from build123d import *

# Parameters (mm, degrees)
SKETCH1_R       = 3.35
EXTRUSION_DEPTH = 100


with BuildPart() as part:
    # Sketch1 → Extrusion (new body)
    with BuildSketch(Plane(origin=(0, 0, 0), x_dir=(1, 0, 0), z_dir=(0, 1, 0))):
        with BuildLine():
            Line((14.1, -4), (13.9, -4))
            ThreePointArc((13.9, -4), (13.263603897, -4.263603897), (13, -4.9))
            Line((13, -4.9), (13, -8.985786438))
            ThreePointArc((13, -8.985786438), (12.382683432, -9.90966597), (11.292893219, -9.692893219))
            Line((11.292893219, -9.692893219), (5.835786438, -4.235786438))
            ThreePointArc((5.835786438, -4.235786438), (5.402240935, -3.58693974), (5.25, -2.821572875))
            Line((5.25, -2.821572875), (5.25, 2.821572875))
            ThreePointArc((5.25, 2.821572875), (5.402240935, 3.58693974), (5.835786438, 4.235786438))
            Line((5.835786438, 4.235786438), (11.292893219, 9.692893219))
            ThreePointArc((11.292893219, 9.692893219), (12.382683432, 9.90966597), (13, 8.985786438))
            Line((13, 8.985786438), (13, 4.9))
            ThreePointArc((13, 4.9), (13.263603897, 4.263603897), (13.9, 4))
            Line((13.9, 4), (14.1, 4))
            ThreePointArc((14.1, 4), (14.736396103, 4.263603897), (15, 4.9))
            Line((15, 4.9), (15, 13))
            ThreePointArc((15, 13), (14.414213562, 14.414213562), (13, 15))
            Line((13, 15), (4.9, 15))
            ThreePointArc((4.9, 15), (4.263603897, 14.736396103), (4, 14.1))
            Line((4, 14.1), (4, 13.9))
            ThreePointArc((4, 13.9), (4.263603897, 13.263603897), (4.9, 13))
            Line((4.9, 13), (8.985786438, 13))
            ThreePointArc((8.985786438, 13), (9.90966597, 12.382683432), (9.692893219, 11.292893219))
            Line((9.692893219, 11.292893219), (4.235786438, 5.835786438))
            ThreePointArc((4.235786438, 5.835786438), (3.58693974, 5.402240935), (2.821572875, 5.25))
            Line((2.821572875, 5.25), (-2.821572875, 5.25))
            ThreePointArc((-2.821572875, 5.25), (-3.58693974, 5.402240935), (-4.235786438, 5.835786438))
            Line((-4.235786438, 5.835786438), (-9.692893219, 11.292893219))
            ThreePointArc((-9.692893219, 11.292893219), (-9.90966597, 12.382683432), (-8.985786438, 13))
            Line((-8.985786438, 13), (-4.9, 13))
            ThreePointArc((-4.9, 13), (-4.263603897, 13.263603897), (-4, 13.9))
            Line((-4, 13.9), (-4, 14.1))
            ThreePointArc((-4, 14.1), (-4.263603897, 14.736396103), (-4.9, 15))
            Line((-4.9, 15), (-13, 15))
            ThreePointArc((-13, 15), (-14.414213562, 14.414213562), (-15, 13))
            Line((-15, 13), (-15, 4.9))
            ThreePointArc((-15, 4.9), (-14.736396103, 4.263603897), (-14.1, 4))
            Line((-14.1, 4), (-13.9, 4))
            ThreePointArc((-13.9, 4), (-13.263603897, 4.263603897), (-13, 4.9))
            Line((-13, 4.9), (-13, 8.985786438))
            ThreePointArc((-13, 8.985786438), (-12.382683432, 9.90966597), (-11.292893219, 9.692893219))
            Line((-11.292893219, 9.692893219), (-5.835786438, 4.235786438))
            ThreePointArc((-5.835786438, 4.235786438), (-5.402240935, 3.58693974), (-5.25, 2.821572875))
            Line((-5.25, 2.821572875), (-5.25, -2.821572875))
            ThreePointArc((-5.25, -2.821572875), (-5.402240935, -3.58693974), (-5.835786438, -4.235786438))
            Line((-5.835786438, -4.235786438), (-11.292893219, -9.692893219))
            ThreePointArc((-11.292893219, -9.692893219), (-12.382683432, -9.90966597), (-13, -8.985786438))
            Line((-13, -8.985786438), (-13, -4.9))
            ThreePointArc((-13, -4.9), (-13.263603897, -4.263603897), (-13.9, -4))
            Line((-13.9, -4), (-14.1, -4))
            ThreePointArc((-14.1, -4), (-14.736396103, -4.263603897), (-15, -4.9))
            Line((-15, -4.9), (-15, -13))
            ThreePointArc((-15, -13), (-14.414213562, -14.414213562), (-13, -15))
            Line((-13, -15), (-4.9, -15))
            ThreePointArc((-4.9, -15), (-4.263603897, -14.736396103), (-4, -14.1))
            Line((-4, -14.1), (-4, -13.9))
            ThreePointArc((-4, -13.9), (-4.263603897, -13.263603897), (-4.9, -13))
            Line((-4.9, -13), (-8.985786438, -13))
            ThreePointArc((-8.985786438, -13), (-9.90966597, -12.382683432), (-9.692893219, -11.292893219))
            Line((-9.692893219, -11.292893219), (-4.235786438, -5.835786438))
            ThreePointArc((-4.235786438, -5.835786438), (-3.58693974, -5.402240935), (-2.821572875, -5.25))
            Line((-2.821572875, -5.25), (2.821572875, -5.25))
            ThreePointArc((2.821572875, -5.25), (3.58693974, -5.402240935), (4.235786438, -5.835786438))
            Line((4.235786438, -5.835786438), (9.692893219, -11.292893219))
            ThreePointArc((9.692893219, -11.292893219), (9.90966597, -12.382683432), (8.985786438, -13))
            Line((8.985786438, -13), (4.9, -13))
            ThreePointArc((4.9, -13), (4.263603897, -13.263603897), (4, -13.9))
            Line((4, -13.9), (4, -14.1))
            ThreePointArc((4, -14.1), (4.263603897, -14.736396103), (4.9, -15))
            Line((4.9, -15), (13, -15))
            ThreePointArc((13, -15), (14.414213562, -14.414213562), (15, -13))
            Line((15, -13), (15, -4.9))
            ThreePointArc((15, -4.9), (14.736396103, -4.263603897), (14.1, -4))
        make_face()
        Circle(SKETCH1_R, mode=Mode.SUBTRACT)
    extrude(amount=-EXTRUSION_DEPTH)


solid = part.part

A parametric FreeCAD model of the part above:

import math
import FreeCAD as App
import Part
import Sketcher

V = App.Vector

doc = App.newDocument("Part")
body = doc.addObject("PartDesign::Body", "Body")

# Sketch on XZ plane
sketch1 = doc.addObject("Sketcher::SketchObject", "Sketch")
body.addObject(sketch1)
sketch1.AttachmentSupport = (doc.XZ_Plane, [""])
sketch1.MapMode = "FlatFace"
sketch1.addGeometry(Part.LineSegment(V(14.1, 4, 0), V(13.9, 4, 0)), False)
sketch1.addGeometry(Part.ArcOfCircle(Part.Circle(V(13.9, 4.9, 0), V(0, 0, 1), 0.9), math.radians(180), math.radians(270)), False)
sketch1.addGeometry(Part.LineSegment(V(13, 4.9, 0), V(13, 8.985786, 0)), False)
sketch1.addGeometry(Part.ArcOfCircle(Part.Circle(V(12, 8.985786, 0), V(0, 0, 1), 1), math.radians(0), math.radians(135)), False)
sketch1.addGeometry(Part.LineSegment(V(11.292893, 9.692893, 0), V(5.835786, 4.235786, 0)), False)
sketch1.addGeometry(Part.ArcOfCircle(Part.Circle(V(7.25, 2.821573, 0), V(0, 0, 1), 2), math.radians(135), math.radians(180)), False)
sketch1.addGeometry(Part.LineSegment(V(5.25, 2.821573, 0), V(5.25, -2.821573, 0)), False)
sketch1.addGeometry(Part.ArcOfCircle(Part.Circle(V(7.25, -2.821573, 0), V(0, 0, 1), 2), math.radians(180), math.radians(225)), False)
sketch1.addGeometry(Part.LineSegment(V(5.835786, -4.235786, 0), V(11.292893, -9.692893, 0)), False)
sketch1.addGeometry(Part.ArcOfCircle(Part.Circle(V(12, -8.985786, 0), V(0, 0, 1), 1), math.radians(-135), math.radians(0)), False)
sketch1.addGeometry(Part.LineSegment(V(13, -8.985786, 0), V(13, -4.9, 0)), False)
sketch1.addGeometry(Part.ArcOfCircle(Part.Circle(V(13.9, -4.9, 0), V(0, 0, 1), 0.9), math.radians(90), math.radians(180)), False)
sketch1.addGeometry(Part.LineSegment(V(13.9, -4, 0), V(14.1, -4, 0)), False)
sketch1.addGeometry(Part.ArcOfCircle(Part.Circle(V(14.1, -4.9, 0), V(0, 0, 1), 0.9), math.radians(0), math.radians(90)), False)
sketch1.addGeometry(Part.LineSegment(V(15, -4.9, 0), V(15, -13, 0)), False)
sketch1.addGeometry(Part.ArcOfCircle(Part.Circle(V(13, -13, 0), V(0, 0, 1), 2), math.radians(-90), math.radians(0)), False)
sketch1.addGeometry(Part.LineSegment(V(13, -15, 0), V(4.9, -15, 0)), False)
sketch1.addGeometry(Part.ArcOfCircle(Part.Circle(V(4.9, -14.1, 0), V(0, 0, 1), 0.9), math.radians(180), math.radians(270)), False)
sketch1.addGeometry(Part.LineSegment(V(4, -14.1, 0), V(4, -13.9, 0)), False)
sketch1.addGeometry(Part.ArcOfCircle(Part.Circle(V(4.9, -13.9, 0), V(0, 0, 1), 0.9), math.radians(90), math.radians(180)), False)
sketch1.addGeometry(Part.LineSegment(V(4.9, -13, 0), V(8.985786, -13, 0)), False)
sketch1.addGeometry(Part.ArcOfCircle(Part.Circle(V(8.985786, -12, 0), V(0, 0, 1), 1), math.radians(-90), math.radians(45)), False)
sketch1.addGeometry(Part.LineSegment(V(9.692893, -11.292893, 0), V(4.235786, -5.835786, 0)), False)
sketch1.addGeometry(Part.ArcOfCircle(Part.Circle(V(2.821573, -7.25, 0), V(0, 0, 1), 2), math.radians(45), math.radians(90)), False)
sketch1.addGeometry(Part.LineSegment(V(2.821573, -5.25, 0), V(-2.821573, -5.25, 0)), False)
sketch1.addGeometry(Part.ArcOfCircle(Part.Circle(V(-2.821573, -7.25, 0), V(0, 0, 1), 2), math.radians(90), math.radians(135)), False)
sketch1.addGeometry(Part.LineSegment(V(-4.235786, -5.835786, 0), V(-9.692893, -11.292893, 0)), False)
sketch1.addGeometry(Part.ArcOfCircle(Part.Circle(V(-8.985786, -12, 0), V(0, 0, 1), 1), math.radians(135), math.radians(270)), False)
sketch1.addGeometry(Part.LineSegment(V(-8.985786, -13, 0), V(-4.9, -13, 0)), False)
sketch1.addGeometry(Part.ArcOfCircle(Part.Circle(V(-4.9, -13.9, 0), V(0, 0, 1), 0.9), math.radians(0), math.radians(90)), False)
sketch1.addGeometry(Part.LineSegment(V(-4, -13.9, 0), V(-4, -14.1, 0)), False)
sketch1.addGeometry(Part.ArcOfCircle(Part.Circle(V(-4.9, -14.1, 0), V(0, 0, 1), 0.9), math.radians(-90), math.radians(0)), False)
sketch1.addGeometry(Part.LineSegment(V(-4.9, -15, 0), V(-13, -15, 0)), False)
sketch1.addGeometry(Part.ArcOfCircle(Part.Circle(V(-13, -13, 0), V(0, 0, 1), 2), math.radians(-180), math.radians(-90)), False)
sketch1.addGeometry(Part.LineSegment(V(-15, -13, 0), V(-15, -4.9, 0)), False)
sketch1.addGeometry(Part.ArcOfCircle(Part.Circle(V(-14.1, -4.9, 0), V(0, 0, 1), 0.9), math.radians(90), math.radians(180)), False)
sketch1.addGeometry(Part.LineSegment(V(-14.1, -4, 0), V(-13.9, -4, 0)), False)
sketch1.addGeometry(Part.ArcOfCircle(Part.Circle(V(-13.9, -4.9, 0), V(0, 0, 1), 0.9), math.radians(0), math.radians(90)), False)
sketch1.addGeometry(Part.LineSegment(V(-13, -4.9, 0), V(-13, -8.985786, 0)), False)
sketch1.addGeometry(Part.ArcOfCircle(Part.Circle(V(-12, -8.985786, 0), V(0, 0, 1), 1), math.radians(-180), math.radians(-45)), False)
sketch1.addGeometry(Part.LineSegment(V(-11.292893, -9.692893, 0), V(-5.835786, -4.235786, 0)), False)
sketch1.addGeometry(Part.ArcOfCircle(Part.Circle(V(-7.25, -2.821573, 0), V(0, 0, 1), 2), math.radians(-45), math.radians(0)), False)
sketch1.addGeometry(Part.LineSegment(V(-5.25, -2.821573, 0), V(-5.25, 2.821573, 0)), False)
sketch1.addGeometry(Part.ArcOfCircle(Part.Circle(V(-7.25, 2.821573, 0), V(0, 0, 1), 2), math.radians(0), math.radians(45)), False)
sketch1.addGeometry(Part.LineSegment(V(-5.835786, 4.235786, 0), V(-11.292893, 9.692893, 0)), False)
sketch1.addGeometry(Part.ArcOfCircle(Part.Circle(V(-12, 8.985786, 0), V(0, 0, 1), 1), math.radians(45), math.radians(180)), False)
sketch1.addGeometry(Part.LineSegment(V(-13, 8.985786, 0), V(-13, 4.9, 0)), False)
sketch1.addGeometry(Part.ArcOfCircle(Part.Circle(V(-13.9, 4.9, 0), V(0, 0, 1), 0.9), math.radians(-90), math.radians(0)), False)
sketch1.addGeometry(Part.LineSegment(V(-13.9, 4, 0), V(-14.1, 4, 0)), False)
sketch1.addGeometry(Part.ArcOfCircle(Part.Circle(V(-14.1, 4.9, 0), V(0, 0, 1), 0.9), math.radians(180), math.radians(270)), False)
sketch1.addGeometry(Part.LineSegment(V(-15, 4.9, 0), V(-15, 13, 0)), False)
sketch1.addGeometry(Part.ArcOfCircle(Part.Circle(V(-13, 13, 0), V(0, 0, 1), 2), math.radians(90), math.radians(180)), False)
sketch1.addGeometry(Part.LineSegment(V(-13, 15, 0), V(-4.9, 15, 0)), False)
sketch1.addGeometry(Part.ArcOfCircle(Part.Circle(V(-4.9, 14.1, 0), V(0, 0, 1), 0.9), math.radians(0), math.radians(90)), False)
sketch1.addGeometry(Part.LineSegment(V(-4, 14.1, 0), V(-4, 13.9, 0)), False)
sketch1.addGeometry(Part.ArcOfCircle(Part.Circle(V(-4.9, 13.9, 0), V(0, 0, 1), 0.9), math.radians(-90), math.radians(0)), False)
sketch1.addGeometry(Part.LineSegment(V(-4.9, 13, 0), V(-8.985786, 13, 0)), False)
sketch1.addGeometry(Part.ArcOfCircle(Part.Circle(V(-8.985786, 12, 0), V(0, 0, 1), 1), math.radians(90), math.radians(225)), False)
sketch1.addGeometry(Part.LineSegment(V(-9.692893, 11.292893, 0), V(-4.235786, 5.835786, 0)), False)
sketch1.addGeometry(Part.ArcOfCircle(Part.Circle(V(-2.821573, 7.25, 0), V(0, 0, 1), 2), math.radians(-135), math.radians(-90)), False)
sketch1.addGeometry(Part.LineSegment(V(-2.821573, 5.25, 0), V(2.821573, 5.25, 0)), False)
sketch1.addGeometry(Part.ArcOfCircle(Part.Circle(V(2.821573, 7.25, 0), V(0, 0, 1), 2), math.radians(-90), math.radians(-45)), False)
sketch1.addGeometry(Part.LineSegment(V(4.235786, 5.835786, 0), V(9.692893, 11.292893, 0)), False)
sketch1.addGeometry(Part.ArcOfCircle(Part.Circle(V(8.985786, 12, 0), V(0, 0, 1), 1), math.radians(-45), math.radians(90)), False)
sketch1.addGeometry(Part.LineSegment(V(8.985786, 13, 0), V(4.9, 13, 0)), False)
sketch1.addGeometry(Part.ArcOfCircle(Part.Circle(V(4.9, 13.9, 0), V(0, 0, 1), 0.9), math.radians(180), math.radians(270)), False)
sketch1.addGeometry(Part.LineSegment(V(4, 13.9, 0), V(4, 14.1, 0)), False)
sketch1.addGeometry(Part.ArcOfCircle(Part.Circle(V(4.9, 14.1, 0), V(0, 0, 1), 0.9), math.radians(90), math.radians(180)), False)
sketch1.addGeometry(Part.LineSegment(V(4.9, 15, 0), V(13, 15, 0)), False)
sketch1.addGeometry(Part.ArcOfCircle(Part.Circle(V(13, 13, 0), V(0, 0, 1), 2), math.radians(0), math.radians(90)), False)
sketch1.addGeometry(Part.LineSegment(V(15, 13, 0), V(15, 4.9, 0)), False)
sketch1.addGeometry(Part.ArcOfCircle(Part.Circle(V(14.1, 4.9, 0), V(0, 0, 1), 0.9), math.radians(-90), math.radians(0)), False)
sketch1.addGeometry(Part.Circle(V(0, 0, 0), V(0, 0, 1), 3.35), False)
sketch1.addConstraint(Sketcher.Constraint("Tangent", 0, 2, 1, 2))
sketch1.addConstraint(Sketcher.Constraint("Tangent", 1, 1, 2, 1))
sketch1.addConstraint(Sketcher.Constraint("Tangent", 2, 2, 3, 1))
sketch1.addConstraint(Sketcher.Constraint("Tangent", 3, 2, 4, 1))
sketch1.addConstraint(Sketcher.Constraint("Tangent", 4, 2, 5, 1))
sketch1.addConstraint(Sketcher.Constraint("Tangent", 5, 2, 6, 1))
sketch1.addConstraint(Sketcher.Constraint("Tangent", 6, 2, 7, 1))
sketch1.addConstraint(Sketcher.Constraint("Tangent", 7, 2, 8, 1))
sketch1.addConstraint(Sketcher.Constraint("Tangent", 8, 2, 9, 1))
sketch1.addConstraint(Sketcher.Constraint("Tangent", 9, 2, 10, 1))
sketch1.addConstraint(Sketcher.Constraint("Tangent", 10, 2, 11, 2))
sketch1.addConstraint(Sketcher.Constraint("Tangent", 11, 1, 12, 1))
sketch1.addConstraint(Sketcher.Constraint("Tangent", 12, 2, 13, 2))
sketch1.addConstraint(Sketcher.Constraint("Tangent", 13, 1, 14, 1))
sketch1.addConstraint(Sketcher.Constraint("Tangent", 14, 2, 15, 2))
sketch1.addConstraint(Sketcher.Constraint("Tangent", 15, 1, 16, 1))
sketch1.addConstraint(Sketcher.Constraint("Tangent", 16, 2, 17, 2))
sketch1.addConstraint(Sketcher.Constraint("Tangent", 17, 1, 18, 1))
sketch1.addConstraint(Sketcher.Constraint("Tangent", 18, 2, 19, 2))
sketch1.addConstraint(Sketcher.Constraint("Tangent", 19, 1, 20, 1))
sketch1.addConstraint(Sketcher.Constraint("Tangent", 20, 2, 21, 1))
sketch1.addConstraint(Sketcher.Constraint("Tangent", 21, 2, 22, 1))
sketch1.addConstraint(Sketcher.Constraint("Tangent", 22, 2, 23, 1))
sketch1.addConstraint(Sketcher.Constraint("Tangent", 23, 2, 24, 1))
sketch1.addConstraint(Sketcher.Constraint("Tangent", 24, 2, 25, 1))
sketch1.addConstraint(Sketcher.Constraint("Tangent", 25, 2, 26, 1))
sketch1.addConstraint(Sketcher.Constraint("Tangent", 26, 2, 27, 1))
sketch1.addConstraint(Sketcher.Constraint("Tangent", 27, 2, 28, 1))
sketch1.addConstraint(Sketcher.Constraint("Tangent", 28, 2, 29, 2))
sketch1.addConstraint(Sketcher.Constraint("Tangent", 29, 1, 30, 1))
sketch1.addConstraint(Sketcher.Constraint("Tangent", 30, 2, 31, 2))
sketch1.addConstraint(Sketcher.Constraint("Tangent", 31, 1, 32, 1))
sketch1.addConstraint(Sketcher.Constraint("Tangent", 32, 2, 33, 2))
sketch1.addConstraint(Sketcher.Constraint("Tangent", 33, 1, 34, 1))
sketch1.addConstraint(Sketcher.Constraint("Tangent", 34, 2, 35, 2))
sketch1.addConstraint(Sketcher.Constraint("Tangent", 35, 1, 36, 1))
sketch1.addConstraint(Sketcher.Constraint("Tangent", 36, 2, 37, 2))
sketch1.addConstraint(Sketcher.Constraint("Tangent", 37, 1, 38, 1))
sketch1.addConstraint(Sketcher.Constraint("Tangent", 38, 2, 39, 1))
sketch1.addConstraint(Sketcher.Constraint("Tangent", 39, 2, 40, 1))
sketch1.addConstraint(Sketcher.Constraint("Tangent", 40, 2, 41, 1))
sketch1.addConstraint(Sketcher.Constraint("Tangent", 41, 2, 42, 1))
sketch1.addConstraint(Sketcher.Constraint("Tangent", 42, 2, 43, 1))
sketch1.addConstraint(Sketcher.Constraint("Tangent", 43, 2, 44, 1))
sketch1.addConstraint(Sketcher.Constraint("Tangent", 44, 2, 45, 1))
sketch1.addConstraint(Sketcher.Constraint("Tangent", 45, 2, 46, 1))
sketch1.addConstraint(Sketcher.Constraint("Tangent", 46, 2, 47, 2))
sketch1.addConstraint(Sketcher.Constraint("Tangent", 47, 1, 48, 1))
sketch1.addConstraint(Sketcher.Constraint("Tangent", 48, 2, 49, 2))
sketch1.addConstraint(Sketcher.Constraint("Tangent", 49, 1, 50, 1))
sketch1.addConstraint(Sketcher.Constraint("Tangent", 50, 2, 51, 2))
sketch1.addConstraint(Sketcher.Constraint("Tangent", 51, 1, 52, 1))
sketch1.addConstraint(Sketcher.Constraint("Tangent", 52, 2, 53, 2))
sketch1.addConstraint(Sketcher.Constraint("Tangent", 53, 1, 54, 1))
sketch1.addConstraint(Sketcher.Constraint("Tangent", 54, 2, 55, 2))
sketch1.addConstraint(Sketcher.Constraint("Tangent", 55, 1, 56, 1))
sketch1.addConstraint(Sketcher.Constraint("Tangent", 56, 2, 57, 1))
sketch1.addConstraint(Sketcher.Constraint("Tangent", 57, 2, 58, 1))
sketch1.addConstraint(Sketcher.Constraint("Tangent", 58, 2, 59, 1))
sketch1.addConstraint(Sketcher.Constraint("Tangent", 59, 2, 60, 1))
sketch1.addConstraint(Sketcher.Constraint("Tangent", 60, 2, 61, 1))
sketch1.addConstraint(Sketcher.Constraint("Tangent", 61, 2, 62, 1))
sketch1.addConstraint(Sketcher.Constraint("Tangent", 62, 2, 63, 1))
sketch1.addConstraint(Sketcher.Constraint("Tangent", 63, 2, 64, 1))
sketch1.addConstraint(Sketcher.Constraint("Tangent", 64, 2, 65, 2))
sketch1.addConstraint(Sketcher.Constraint("Tangent", 65, 1, 66, 1))
sketch1.addConstraint(Sketcher.Constraint("Tangent", 66, 2, 67, 2))
sketch1.addConstraint(Sketcher.Constraint("Tangent", 67, 1, 68, 1))
sketch1.addConstraint(Sketcher.Constraint("Tangent", 68, 2, 69, 2))
sketch1.addConstraint(Sketcher.Constraint("Tangent", 69, 1, 70, 1))
sketch1.addConstraint(Sketcher.Constraint("Tangent", 70, 2, 71, 2))
sketch1.addConstraint(Sketcher.Constraint("Tangent", 71, 1, 0, 1))
sketch1.addConstraint(Sketcher.Constraint("Horizontal", 0))
sketch1.addConstraint(Sketcher.Constraint("Vertical", 2))
sketch1.addConstraint(Sketcher.Constraint("Vertical", 6))
sketch1.addConstraint(Sketcher.Constraint("Vertical", 10))
sketch1.addConstraint(Sketcher.Constraint("Horizontal", 12))
sketch1.addConstraint(Sketcher.Constraint("Vertical", 14))
sketch1.addConstraint(Sketcher.Constraint("Horizontal", 16))
sketch1.addConstraint(Sketcher.Constraint("Vertical", 18))
sketch1.addConstraint(Sketcher.Constraint("Horizontal", 20))
sketch1.addConstraint(Sketcher.Constraint("Horizontal", 24))
sketch1.addConstraint(Sketcher.Constraint("Horizontal", 28))
sketch1.addConstraint(Sketcher.Constraint("Vertical", 30))
sketch1.addConstraint(Sketcher.Constraint("Horizontal", 32))
sketch1.addConstraint(Sketcher.Constraint("Vertical", 34))
sketch1.addConstraint(Sketcher.Constraint("Horizontal", 36))
sketch1.addConstraint(Sketcher.Constraint("Vertical", 38))
sketch1.addConstraint(Sketcher.Constraint("Vertical", 42))
sketch1.addConstraint(Sketcher.Constraint("Vertical", 46))
sketch1.addConstraint(Sketcher.Constraint("Horizontal", 48))
sketch1.addConstraint(Sketcher.Constraint("Vertical", 50))
sketch1.addConstraint(Sketcher.Constraint("Horizontal", 52))
sketch1.addConstraint(Sketcher.Constraint("Vertical", 54))
sketch1.addConstraint(Sketcher.Constraint("Horizontal", 56))
sketch1.addConstraint(Sketcher.Constraint("Horizontal", 60))
sketch1.addConstraint(Sketcher.Constraint("Horizontal", 64))
sketch1.addConstraint(Sketcher.Constraint("Vertical", 66))
sketch1.addConstraint(Sketcher.Constraint("Horizontal", 68))
sketch1.addConstraint(Sketcher.Constraint("Vertical", 70))
sketch1.addConstraint(Sketcher.Constraint("Coincident", 72, 3, -1, 1))
sketch1.addConstraint(Sketcher.Constraint("Equal", 5, 7))
sketch1.addConstraint(Sketcher.Constraint("Equal", 3, 9))
sketch1.addConstraint(Sketcher.Constraint("Equal", 1, 11))
sketch1.addConstraint(Sketcher.Constraint("Equal", 11, 13))
sketch1.addConstraint(Sketcher.Constraint("Equal", 7, 15))
sketch1.addConstraint(Sketcher.Constraint("Equal", 13, 17))
sketch1.addConstraint(Sketcher.Constraint("Equal", 17, 19))
sketch1.addConstraint(Sketcher.Constraint("Equal", 9, 21))
sketch1.addConstraint(Sketcher.Constraint("Equal", 15, 23))
sketch1.addConstraint(Sketcher.Constraint("Equal", 23, 25))
sketch1.addConstraint(Sketcher.Constraint("Equal", 21, 27))
sketch1.addConstraint(Sketcher.Constraint("Equal", 19, 29))
sketch1.addConstraint(Sketcher.Constraint("Equal", 29, 31))
sketch1.addConstraint(Sketcher.Constraint("Equal", 25, 33))
sketch1.addConstraint(Sketcher.Constraint("Equal", 31, 35))
sketch1.addConstraint(Sketcher.Constraint("Equal", 35, 37))
sketch1.addConstraint(Sketcher.Constraint("Equal", 27, 39))
sketch1.addConstraint(Sketcher.Constraint("Equal", 33, 41))
sketch1.addConstraint(Sketcher.Constraint("Equal", 41, 43))
sketch1.addConstraint(Sketcher.Constraint("Equal", 39, 45))
sketch1.addConstraint(Sketcher.Constraint("Equal", 37, 47))
sketch1.addConstraint(Sketcher.Constraint("Equal", 47, 49))
sketch1.addConstraint(Sketcher.Constraint("Equal", 43, 51))
sketch1.addConstraint(Sketcher.Constraint("Equal", 49, 53))
sketch1.addConstraint(Sketcher.Constraint("Equal", 53, 55))
sketch1.addConstraint(Sketcher.Constraint("Equal", 45, 57))
sketch1.addConstraint(Sketcher.Constraint("Equal", 51, 59))
sketch1.addConstraint(Sketcher.Constraint("Equal", 59, 61))
sketch1.addConstraint(Sketcher.Constraint("Equal", 57, 63))
sketch1.addConstraint(Sketcher.Constraint("Equal", 55, 65))
sketch1.addConstraint(Sketcher.Constraint("Equal", 65, 67))
sketch1.addConstraint(Sketcher.Constraint("Equal", 61, 69))
sketch1.addConstraint(Sketcher.Constraint("Equal", 67, 71))
sketch1.addConstraint(Sketcher.Constraint("Symmetric", 1, 3, 37, 3, -1, 1))
sketch1.addConstraint(Sketcher.Constraint("Symmetric", 5, 3, 41, 3, -1, 1))
sketch1.addConstraint(Sketcher.Constraint("Symmetric", 9, 3, 45, 3, -1, 1))
sketch1.addConstraint(Sketcher.Constraint("Symmetric", 13, 3, 49, 3, -1, 1))
sketch1.addConstraint(Sketcher.Constraint("Symmetric", 17, 3, 53, 3, -1, 1))
sketch1.addConstraint(Sketcher.Constraint("Symmetric", 21, 3, 57, 3, -1, 1))
sketch1.addConstraint(Sketcher.Constraint("Symmetric", 23, 3, 59, 3, -1, 1))
sketch1.addConstraint(Sketcher.Constraint("Symmetric", 27, 3, 63, 3, -1, 1))
sketch1.addConstraint(Sketcher.Constraint("Symmetric", 31, 3, 67, 3, -1, 1))
sketch1.addConstraint(Sketcher.Constraint("Symmetric", 21, 3, 27, 3, -2))
sketch1.addConstraint(Sketcher.Constraint("Symmetric", 17, 3, 31, 3, -2))
sketch1.addConstraint(Sketcher.Constraint("Symmetric", 13, 3, 35, 3, -2))
sketch1.addConstraint(Sketcher.Constraint("Symmetric", 9, 3, 39, 3, -2))
sketch1.addConstraint(Sketcher.Constraint("Symmetric", 4, 2, 43, 2, -2))
sketch1.addConstraint(Sketcher.Constraint("Perpendicular", 4, 8))
sketch1.addConstraint(Sketcher.Constraint("Parallel", 8, 22))
sketch1.addConstraint(Sketcher.Constraint("Perpendicular", 22, 26))
sketch1.addConstraint(Sketcher.Constraint("Perpendicular", 40, 44))
sketch1.addConstraint(Sketcher.Constraint("Perpendicular", 58, 62))
sketch1.addConstraint(Sketcher.Constraint("Horizontal", 14, 2, 19, 1))
sketch1.addConstraint(Sketcher.Constraint("Vertical", 15, 3, 69, 3))
sketch1.addConstraint(Sketcher.Constraint("Vertical", 69, 3, 1, 1))
sketch1.addConstraint(Sketcher.Constraint("Equal", 64, 2))
sketch1.addConstraint(Sketcher.Constraint("Equal", 60, 6))
sketch1.addConstraint(Sketcher.Constraint("Equal", 68, 14))
sketch1.addConstraint(Sketcher.Constraint("Equal", 8, 22))
sketch1.addConstraint(Sketcher.Constraint("Radius", 3, 1.0))
sketch1.addConstraint(Sketcher.Constraint("Radius", 5, 2.0))
sketch1.addConstraint(Sketcher.Constraint("Diameter", 72, 6.7))
sketch1.addConstraint(Sketcher.Constraint("Radius", 1, 0.9))
sketch1.addConstraint(Sketcher.Constraint("DistanceX", 16, 2, 16, 1, 8.1))
sketch1.addConstraint(Sketcher.Constraint("DistanceX", -1, 1, 3, 3, 12.0))
sketch1.addConstraint(Sketcher.Constraint("DistanceX", -1, 1, 5, 3, 7.25))
sketch1.addConstraint(Sketcher.Constraint("DistanceX", 20, 1, 20, 2, 4.085786))
pad1 = doc.addObject("PartDesign::Pad", "Pad")
body.addObject(pad1)
pad1.Profile = sketch1
pad1.Length = 100

doc.recompute()
